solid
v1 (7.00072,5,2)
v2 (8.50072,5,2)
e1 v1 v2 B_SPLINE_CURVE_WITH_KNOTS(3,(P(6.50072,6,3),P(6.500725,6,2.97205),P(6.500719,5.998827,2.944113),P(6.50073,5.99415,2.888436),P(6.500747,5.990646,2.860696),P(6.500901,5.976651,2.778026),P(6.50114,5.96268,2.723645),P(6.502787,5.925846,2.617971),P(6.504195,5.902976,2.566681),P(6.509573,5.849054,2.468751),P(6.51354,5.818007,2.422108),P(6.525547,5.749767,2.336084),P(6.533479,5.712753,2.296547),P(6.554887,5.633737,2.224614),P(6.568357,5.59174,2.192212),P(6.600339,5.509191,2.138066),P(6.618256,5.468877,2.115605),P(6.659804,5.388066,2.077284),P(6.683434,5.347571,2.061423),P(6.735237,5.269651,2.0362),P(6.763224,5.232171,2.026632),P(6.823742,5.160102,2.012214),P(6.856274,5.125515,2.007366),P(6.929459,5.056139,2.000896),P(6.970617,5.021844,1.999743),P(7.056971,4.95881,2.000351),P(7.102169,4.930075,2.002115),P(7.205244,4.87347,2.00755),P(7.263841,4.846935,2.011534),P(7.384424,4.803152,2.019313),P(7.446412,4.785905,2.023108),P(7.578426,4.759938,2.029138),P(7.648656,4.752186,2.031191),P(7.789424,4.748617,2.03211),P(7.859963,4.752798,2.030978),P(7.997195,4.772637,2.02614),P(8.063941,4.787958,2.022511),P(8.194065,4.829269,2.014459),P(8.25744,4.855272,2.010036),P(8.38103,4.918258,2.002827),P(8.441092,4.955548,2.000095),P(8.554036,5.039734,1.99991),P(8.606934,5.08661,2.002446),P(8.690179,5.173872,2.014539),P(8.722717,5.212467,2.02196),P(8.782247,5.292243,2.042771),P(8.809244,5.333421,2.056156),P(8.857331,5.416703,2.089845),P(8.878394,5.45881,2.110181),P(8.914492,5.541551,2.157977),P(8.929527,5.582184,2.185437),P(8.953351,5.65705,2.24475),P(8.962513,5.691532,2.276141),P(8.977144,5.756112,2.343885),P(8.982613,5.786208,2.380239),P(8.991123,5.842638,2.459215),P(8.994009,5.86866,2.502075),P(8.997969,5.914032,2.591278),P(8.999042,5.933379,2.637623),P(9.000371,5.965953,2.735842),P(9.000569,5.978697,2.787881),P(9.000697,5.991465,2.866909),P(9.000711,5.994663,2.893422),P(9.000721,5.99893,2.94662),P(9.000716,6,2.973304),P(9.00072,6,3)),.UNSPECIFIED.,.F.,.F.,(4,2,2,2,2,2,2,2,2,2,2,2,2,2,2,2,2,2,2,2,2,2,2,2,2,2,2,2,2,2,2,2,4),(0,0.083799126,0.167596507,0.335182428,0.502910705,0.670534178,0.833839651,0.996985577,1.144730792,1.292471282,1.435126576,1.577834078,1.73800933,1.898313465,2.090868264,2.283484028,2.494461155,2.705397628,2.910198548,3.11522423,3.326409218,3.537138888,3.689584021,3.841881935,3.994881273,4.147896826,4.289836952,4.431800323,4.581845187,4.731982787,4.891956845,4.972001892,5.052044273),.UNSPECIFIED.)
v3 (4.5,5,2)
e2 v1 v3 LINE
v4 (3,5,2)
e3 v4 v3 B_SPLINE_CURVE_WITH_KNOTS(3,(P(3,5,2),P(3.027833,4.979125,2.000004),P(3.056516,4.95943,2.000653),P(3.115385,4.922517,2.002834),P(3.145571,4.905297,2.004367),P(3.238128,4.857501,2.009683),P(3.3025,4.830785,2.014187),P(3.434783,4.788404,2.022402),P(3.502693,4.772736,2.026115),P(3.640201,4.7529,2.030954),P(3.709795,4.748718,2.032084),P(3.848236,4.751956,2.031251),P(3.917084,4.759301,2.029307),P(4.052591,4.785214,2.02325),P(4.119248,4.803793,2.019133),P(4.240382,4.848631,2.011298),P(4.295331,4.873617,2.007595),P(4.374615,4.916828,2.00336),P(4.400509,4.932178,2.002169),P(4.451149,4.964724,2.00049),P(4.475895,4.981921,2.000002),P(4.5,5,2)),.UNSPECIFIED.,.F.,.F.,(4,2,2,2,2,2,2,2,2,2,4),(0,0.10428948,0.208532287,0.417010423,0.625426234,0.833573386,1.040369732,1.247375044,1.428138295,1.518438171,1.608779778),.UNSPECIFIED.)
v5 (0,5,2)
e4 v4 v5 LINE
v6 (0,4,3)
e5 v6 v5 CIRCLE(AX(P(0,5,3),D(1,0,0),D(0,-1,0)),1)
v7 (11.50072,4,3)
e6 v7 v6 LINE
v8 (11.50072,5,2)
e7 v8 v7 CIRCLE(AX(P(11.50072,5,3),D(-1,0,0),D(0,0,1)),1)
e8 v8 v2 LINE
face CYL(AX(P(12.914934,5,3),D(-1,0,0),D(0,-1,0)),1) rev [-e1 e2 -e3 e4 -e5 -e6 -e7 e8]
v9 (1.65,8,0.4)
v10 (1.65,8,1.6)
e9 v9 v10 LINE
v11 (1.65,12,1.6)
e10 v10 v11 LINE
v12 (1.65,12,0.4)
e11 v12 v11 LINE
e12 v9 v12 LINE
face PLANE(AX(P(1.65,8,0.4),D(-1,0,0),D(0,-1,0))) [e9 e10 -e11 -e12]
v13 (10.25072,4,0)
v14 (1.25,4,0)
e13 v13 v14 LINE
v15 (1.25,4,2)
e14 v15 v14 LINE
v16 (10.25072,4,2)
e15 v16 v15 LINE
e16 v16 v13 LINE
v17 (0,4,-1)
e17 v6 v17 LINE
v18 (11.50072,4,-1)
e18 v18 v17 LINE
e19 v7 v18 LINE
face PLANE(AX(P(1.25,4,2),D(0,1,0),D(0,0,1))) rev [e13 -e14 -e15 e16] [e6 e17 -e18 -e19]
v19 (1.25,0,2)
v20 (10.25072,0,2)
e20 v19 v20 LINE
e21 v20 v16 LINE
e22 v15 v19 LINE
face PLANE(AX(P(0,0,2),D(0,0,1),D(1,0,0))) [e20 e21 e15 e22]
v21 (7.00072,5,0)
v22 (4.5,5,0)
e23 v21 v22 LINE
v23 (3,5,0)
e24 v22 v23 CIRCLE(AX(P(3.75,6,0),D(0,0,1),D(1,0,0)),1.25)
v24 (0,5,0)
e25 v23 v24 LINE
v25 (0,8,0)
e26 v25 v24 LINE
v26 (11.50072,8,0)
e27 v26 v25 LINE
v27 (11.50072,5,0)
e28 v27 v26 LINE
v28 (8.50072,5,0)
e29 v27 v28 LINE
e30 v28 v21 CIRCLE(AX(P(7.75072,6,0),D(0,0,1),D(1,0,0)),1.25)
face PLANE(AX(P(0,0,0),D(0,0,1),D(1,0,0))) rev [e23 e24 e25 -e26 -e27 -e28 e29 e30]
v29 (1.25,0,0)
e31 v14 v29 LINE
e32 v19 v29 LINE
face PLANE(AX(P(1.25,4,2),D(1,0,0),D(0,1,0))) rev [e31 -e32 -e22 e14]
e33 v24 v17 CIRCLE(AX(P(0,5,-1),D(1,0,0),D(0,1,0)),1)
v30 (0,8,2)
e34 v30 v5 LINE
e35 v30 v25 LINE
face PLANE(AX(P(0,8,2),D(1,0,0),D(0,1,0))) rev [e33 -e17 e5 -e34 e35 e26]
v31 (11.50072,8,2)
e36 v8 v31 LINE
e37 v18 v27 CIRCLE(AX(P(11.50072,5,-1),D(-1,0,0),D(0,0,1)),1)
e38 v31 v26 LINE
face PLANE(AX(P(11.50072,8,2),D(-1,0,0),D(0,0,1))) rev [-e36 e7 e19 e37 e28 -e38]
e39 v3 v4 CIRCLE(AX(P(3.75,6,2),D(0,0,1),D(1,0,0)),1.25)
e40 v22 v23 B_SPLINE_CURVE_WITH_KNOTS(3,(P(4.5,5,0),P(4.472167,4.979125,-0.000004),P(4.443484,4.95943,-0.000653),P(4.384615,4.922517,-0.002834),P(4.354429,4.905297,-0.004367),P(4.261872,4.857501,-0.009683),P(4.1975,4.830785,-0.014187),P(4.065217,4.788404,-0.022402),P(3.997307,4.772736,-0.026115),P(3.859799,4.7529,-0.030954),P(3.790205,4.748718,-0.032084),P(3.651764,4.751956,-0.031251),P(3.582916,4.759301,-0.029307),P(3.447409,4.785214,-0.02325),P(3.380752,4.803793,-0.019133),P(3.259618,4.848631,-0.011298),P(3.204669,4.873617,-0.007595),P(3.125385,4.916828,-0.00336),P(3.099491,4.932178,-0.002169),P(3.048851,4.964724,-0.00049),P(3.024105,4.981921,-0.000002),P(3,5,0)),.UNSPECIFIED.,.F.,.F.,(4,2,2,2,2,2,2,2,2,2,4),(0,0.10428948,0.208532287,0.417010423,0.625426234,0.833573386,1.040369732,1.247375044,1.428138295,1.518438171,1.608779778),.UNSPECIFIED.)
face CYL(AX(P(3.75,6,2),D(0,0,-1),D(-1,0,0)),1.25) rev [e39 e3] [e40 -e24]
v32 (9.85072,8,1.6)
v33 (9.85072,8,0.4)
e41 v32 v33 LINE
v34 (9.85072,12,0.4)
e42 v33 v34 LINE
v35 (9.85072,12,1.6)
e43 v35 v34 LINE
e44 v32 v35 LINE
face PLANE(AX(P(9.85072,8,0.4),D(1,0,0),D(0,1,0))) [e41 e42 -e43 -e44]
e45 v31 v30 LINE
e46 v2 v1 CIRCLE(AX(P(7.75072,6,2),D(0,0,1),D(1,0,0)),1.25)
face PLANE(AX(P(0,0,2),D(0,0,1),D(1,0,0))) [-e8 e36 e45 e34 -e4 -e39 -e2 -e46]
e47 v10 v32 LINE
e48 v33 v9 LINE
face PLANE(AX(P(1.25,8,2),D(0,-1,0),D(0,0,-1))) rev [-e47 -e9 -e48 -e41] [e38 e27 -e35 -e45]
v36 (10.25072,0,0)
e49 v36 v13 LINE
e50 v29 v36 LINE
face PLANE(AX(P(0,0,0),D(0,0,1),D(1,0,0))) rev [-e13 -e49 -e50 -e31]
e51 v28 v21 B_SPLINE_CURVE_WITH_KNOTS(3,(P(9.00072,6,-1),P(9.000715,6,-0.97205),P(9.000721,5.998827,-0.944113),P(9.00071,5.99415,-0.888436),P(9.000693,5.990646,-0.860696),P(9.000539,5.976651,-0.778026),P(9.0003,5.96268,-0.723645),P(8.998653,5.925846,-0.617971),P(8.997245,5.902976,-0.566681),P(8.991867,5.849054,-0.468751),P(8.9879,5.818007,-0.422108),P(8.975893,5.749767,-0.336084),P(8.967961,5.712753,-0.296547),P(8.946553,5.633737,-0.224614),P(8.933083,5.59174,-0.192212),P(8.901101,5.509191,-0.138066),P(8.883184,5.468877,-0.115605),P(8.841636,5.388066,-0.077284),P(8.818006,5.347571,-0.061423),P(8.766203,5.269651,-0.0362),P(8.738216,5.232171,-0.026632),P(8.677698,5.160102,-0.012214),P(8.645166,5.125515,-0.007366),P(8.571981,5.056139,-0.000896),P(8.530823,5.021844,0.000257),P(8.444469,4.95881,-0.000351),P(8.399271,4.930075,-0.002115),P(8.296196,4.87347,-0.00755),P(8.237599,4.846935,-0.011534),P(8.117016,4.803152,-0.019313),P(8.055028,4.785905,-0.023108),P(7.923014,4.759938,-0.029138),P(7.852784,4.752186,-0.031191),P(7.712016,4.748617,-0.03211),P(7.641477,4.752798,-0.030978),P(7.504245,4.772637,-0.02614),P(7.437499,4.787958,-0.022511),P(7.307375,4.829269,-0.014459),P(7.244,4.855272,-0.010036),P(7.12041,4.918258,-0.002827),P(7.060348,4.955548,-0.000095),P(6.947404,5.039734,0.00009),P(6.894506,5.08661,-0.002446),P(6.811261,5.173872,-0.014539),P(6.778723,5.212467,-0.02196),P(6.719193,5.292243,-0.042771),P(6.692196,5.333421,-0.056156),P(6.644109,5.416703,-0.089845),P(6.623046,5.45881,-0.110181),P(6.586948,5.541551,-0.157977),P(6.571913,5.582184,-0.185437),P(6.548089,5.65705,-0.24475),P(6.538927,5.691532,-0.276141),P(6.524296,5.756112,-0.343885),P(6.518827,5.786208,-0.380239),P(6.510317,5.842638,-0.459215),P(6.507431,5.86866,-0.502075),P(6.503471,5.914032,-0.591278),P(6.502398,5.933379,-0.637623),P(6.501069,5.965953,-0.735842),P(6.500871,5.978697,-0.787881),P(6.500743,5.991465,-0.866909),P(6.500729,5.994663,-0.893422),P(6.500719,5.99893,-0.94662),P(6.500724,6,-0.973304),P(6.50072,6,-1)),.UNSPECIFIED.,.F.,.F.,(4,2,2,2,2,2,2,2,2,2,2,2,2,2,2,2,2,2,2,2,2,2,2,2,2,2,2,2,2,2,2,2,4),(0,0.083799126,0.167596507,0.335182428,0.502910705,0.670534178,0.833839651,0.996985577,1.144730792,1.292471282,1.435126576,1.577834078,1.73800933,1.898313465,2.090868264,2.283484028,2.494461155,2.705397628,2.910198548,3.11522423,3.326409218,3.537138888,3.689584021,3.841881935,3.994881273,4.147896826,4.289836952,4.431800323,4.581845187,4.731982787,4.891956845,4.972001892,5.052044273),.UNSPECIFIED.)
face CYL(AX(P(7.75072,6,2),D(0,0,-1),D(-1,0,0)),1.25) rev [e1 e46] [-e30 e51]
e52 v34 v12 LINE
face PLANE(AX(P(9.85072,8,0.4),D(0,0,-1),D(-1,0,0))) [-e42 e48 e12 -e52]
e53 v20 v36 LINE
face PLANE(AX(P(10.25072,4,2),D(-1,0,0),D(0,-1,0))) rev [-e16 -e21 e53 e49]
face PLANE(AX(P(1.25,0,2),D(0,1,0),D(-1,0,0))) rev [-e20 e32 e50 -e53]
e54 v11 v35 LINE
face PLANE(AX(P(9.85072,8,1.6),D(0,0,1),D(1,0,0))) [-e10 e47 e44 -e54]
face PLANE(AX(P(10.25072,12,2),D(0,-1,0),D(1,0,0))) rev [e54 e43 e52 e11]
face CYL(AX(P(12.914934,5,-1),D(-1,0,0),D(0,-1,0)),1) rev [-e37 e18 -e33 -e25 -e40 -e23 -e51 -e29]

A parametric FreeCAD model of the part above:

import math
import FreeCAD as App
import Part
import Sketcher
from FreeCAD import Vector
Q = App.Units.Quantity

doc = App.newDocument("Part")
params = doc.addObject("Spreadsheet::Sheet", "Params")
for row, (alias, value) in enumerate([
    ("sketch1_diameter", "2.5 mm"),
    ("sketch1_height", "4 mm"),
    ("sketch1_width", "1.25 mm"),
    ("pad1_length", "2 mm"),
    ("sketch2_radius", "1 mm"),
    ("pad2_length", "11.50072 mm"),
    ("sketch3_diameter", "2.5 mm"),
    ("sketch4_height", "2 mm"),
    ("sketch4_height2", "1.2 mm"),
    ("pocket2_length", "4 mm"),
], start=1):
    params.set(f"A{row}", alias)
    params.set(f"B{row}", "=" + value)
    params.setAlias(f"B{row}", alias)

body = doc.addObject("PartDesign::Body", "Body")

sketch1 = doc.addObject("Sketcher::SketchObject", "Sketch")
body.addObject(sketch1)
sketch1.AttachmentSupport = (doc.XY_Plane, [""])
sketch1.MapMode = "FlatFace"
sketch1.addGeometry(Part.LineSegment(Vector(0, 4, 0), Vector(1.2, 4, 0)), False)
sketch1.addGeometry(Part.LineSegment(Vector(1.2, 4, 0), Vector(1.2, 0, 0)), False)
sketch1.addGeometry(Part.LineSegment(Vector(1.2, 0, 0), Vector(10.3, 0, 0)), False)
sketch1.addGeometry(Part.LineSegment(Vector(10.3, 0, 0), Vector(10.3, 4, 0)), False)
sketch1.addGeometry(Part.LineSegment(Vector(10.3, 4, 0), Vector(11.5, 4, 0)), False)
sketch1.addGeometry(Part.LineSegment(Vector(11.5, 4, 0), Vector(11.5, 8, 0)), False)
sketch1.addGeometry(Part.LineSegment(Vector(11.5, 8, 0), Vector(10.3, 8, 0)), False)
sketch1.addGeometry(Part.LineSegment(Vector(10.3, 8, 0), Vector(10.3, 12, 0)), False)
sketch1.addGeometry(Part.LineSegment(Vector(10.3, 12, 0), Vector(1.2, 12, 0)), False)
sketch1.addGeometry(Part.LineSegment(Vector(1.2, 12, 0), Vector(1.2, 8, 0)), False)
sketch1.addGeometry(Part.LineSegment(Vector(1.2, 8, 0), Vector(0, 8, 0)), False)
sketch1.addGeometry(Part.LineSegment(Vector(0, 8, 0), Vector(0, 4, 0)), False)
sketch1.addGeometry(Part.Circle(Vector(7.8, 6, 0), Vector(0, 0, 1), 1.2), False)
sketch1.addGeometry(Part.Circle(Vector(3.8, 6, 0), Vector(0, 0, 1), 1.2), False)
sketch1.addConstraint(Sketcher.Constraint("Coincident", 0, 2, 1, 1))
sketch1.addConstraint(Sketcher.Constraint("Coincident", 1, 2, 2, 1))
sketch1.addConstraint(Sketcher.Constraint("Coincident", 2, 2, 3, 1))
sketch1.addConstraint(Sketcher.Constraint("Coincident", 3, 2, 4, 1))
sketch1.addConstraint(Sketcher.Constraint("Coincident", 4, 2, 5, 1))
sketch1.addConstraint(Sketcher.Constraint("Coincident", 5, 2, 6, 1))
sketch1.addConstraint(Sketcher.Constraint("Coincident", 6, 2, 7, 1))
sketch1.addConstraint(Sketcher.Constraint("Coincident", 7, 2, 8, 1))
sketch1.addConstraint(Sketcher.Constraint("Coincident", 8, 2, 9, 1))
sketch1.addConstraint(Sketcher.Constraint("Coincident", 9, 2, 10, 1))
sketch1.addConstraint(Sketcher.Constraint("Coincident", 10, 2, 11, 1))
sketch1.addConstraint(Sketcher.Constraint("Coincident", 11, 2, 0, 1))
sketch1.addConstraint(Sketcher.Constraint("Horizontal", 0))
sketch1.addConstraint(Sketcher.Constraint("Vertical", 1))
sketch1.addConstraint(Sketcher.Constraint("Horizontal", 2))
sketch1.addConstraint(Sketcher.Constraint("Vertical", 3))
sketch1.addConstraint(Sketcher.Constraint("Horizontal", 4))
sketch1.addConstraint(Sketcher.Constraint("Vertical", 5))
sketch1.addConstraint(Sketcher.Constraint("Horizontal", 6))
sketch1.addConstraint(Sketcher.Constraint("Vertical", 7))
sketch1.addConstraint(Sketcher.Constraint("Horizontal", 8))
sketch1.addConstraint(Sketcher.Constraint("Vertical", 9))
sketch1.addConstraint(Sketcher.Constraint("Horizontal", 10))
sketch1.addConstraint(Sketcher.Constraint("Vertical", 11))
sketch1.addConstraint(Sketcher.Constraint("Equal", 12, 13))
sketch1.addConstraint(Sketcher.Constraint("PointOnObject", 1, 2, -1))
sketch1.addConstraint(Sketcher.Constraint("PointOnObject", 10, 2, -2))
sketch1.addConstraint(Sketcher.Constraint("Horizontal", 12, 3, 13, 3))
sketch1.addConstraint(Sketcher.Constraint("Horizontal", 0, 2, 3, 2))
sketch1.addConstraint(Sketcher.Constraint("Horizontal", 6, 2, 9, 2))
sketch1.addConstraint(Sketcher.Constraint("Vertical", 3, 2, 6, 2))
sketch1.addConstraint(Sketcher.Constraint("Vertical", 1, 2, 8, 2))
sketch1.addConstraint(Sketcher.Constraint("Equal", 0, 4))
sketch1.addConstraint(Sketcher.Constraint("Equal", 3, 5))
sketch1.addConstraint(Sketcher.Constraint("Equal", 5, 7))
sketch1.addConstraint(Sketcher.Constraint("Diameter", 12, Q("2.5 mm")))
sketch1.addConstraint(Sketcher.Constraint("DistanceY", 1, 2, 1, 1, Q("4 mm")))
sketch1.addConstraint(Sketcher.Constraint("DistanceY", -1, 1, 12, 3, Q("6 mm")))
sketch1.addConstraint(Sketcher.Constraint("DistanceX", 0, 1, 0, 2, Q("1.25 mm")))
sketch1.addConstraint(Sketcher.Constraint("DistanceX", 0, 2, 13, 3, Q("2.5 mm")))
sketch1.addConstraint(Sketcher.Constraint("DistanceX", 12, 3, 2, 2, Q("2.5 mm")))
sketch1.addConstraint(Sketcher.Constraint("DistanceX", 2, 1, 2, 2, Q("9.00072 mm")))
sketch1.setExpression("Constraints[35]", "Params.sketch1_diameter")
sketch1.setExpression("Constraints[36]", "Params.sketch1_height")
sketch1.setExpression("Constraints[38]", "Params.sketch1_width")
pad1 = doc.addObject("PartDesign::Pad", "Pad")
body.addObject(pad1)
pad1.Profile = sketch1
pad1.setExpression("Length", "Params.pad1_length")

sketch2 = doc.addObject("Sketcher::SketchObject", "Sketch001")
body.addObject(sketch2)
sketch2.AttachmentSupport = (doc.YZ_Plane, [""])
sketch2.MapMode = "FlatFace"
sketch2.addGeometry(Part.LineSegment(Vector(5, 2, 0), Vector(4, 2, 0)), False)
sketch2.addGeometry(Part.LineSegment(Vector(4, 2, 0), Vector(4, 3, 0)), False)
sketch2.addGeometry(Part.ArcOfCircle(Part.Circle(Vector(5, 3, 0), Vector(0, 0, 1), 1), math.radians(-180), math.radians(-90)), False)
sketch2.addGeometry(Part.LineSegment(Vector(4, -1, 0), Vector(4, 0, 0)), False)
sketch2.addGeometry(Part.LineSegment(Vector(4, 0, 0), Vector(5, 0, 0)), False)
sketch2.addGeometry(Part.ArcOfCircle(Part.Circle(Vector(5, -1, 0), Vector(0, 0, 1), 1), math.radians(90), math.radians(180)), False)
sketch2.addConstraint(Sketcher.Constraint("Coincident", 0, 2, 1, 1))
sketch2.addConstraint(Sketcher.Constraint("Tangent", 1, 2, 2, 1))
sketch2.addConstraint(Sketcher.Constraint("Tangent", 2, 2, 0, 1))
sketch2.addConstraint(Sketcher.Constraint("Coincident", 3, 2, 4, 1))
sketch2.addConstraint(Sketcher.Constraint("Tangent", 4, 2, 5, 1))
sketch2.addConstraint(Sketcher.Constraint("Tangent", 5, 2, 3, 1))
sketch2.addConstraint(Sketcher.Constraint("Horizontal", 0))
sketch2.addConstraint(Sketcher.Constraint("Vertical", 1))
sketch2.addConstraint(Sketcher.Constraint("Vertical", 3))
sketch2.addConstraint(Sketcher.Constraint("Horizontal", 4))
sketch2.addConstraint(Sketcher.Constraint("Equal", 2, 5))
sketch2.addConstraint(Sketcher.Constraint("PointOnObject", 3, 2, -1))
sketch2.addConstraint(Sketcher.Constraint("Vertical", 2, 3, 5, 3))
sketch2.addConstraint(Sketcher.Constraint("Radius", 2, Q("1 mm")))
sketch2.addConstraint(Sketcher.Constraint("DistanceX", -1, 1, 2, 3, Q("5 mm")))
sketch2.addConstraint(Sketcher.Constraint("DistanceY", -1, 1, 2, 3, Q("3 mm")))
sketch2.setExpression("Constraints[13]", "Params.sketch2_radius")
pad2 = doc.addObject("PartDesign::Pad", "Pad001")
body.addObject(pad2)
pad2.Profile = sketch2
pad2.setExpression("Length", "Params.pad2_length")

sketch3 = doc.addObject("Sketcher::SketchObject", "Sketch002")
body.addObject(sketch3)
sketch3.AttachmentSupport = (doc.XY_Plane, [""])
sketch3.MapMode = "FlatFace"
sketch3.AttachmentOffset = App.Placement(Vector(0, 0, 2), App.Rotation())
sketch3.addGeometry(Part.Circle(Vector(3.8, 6, 0), Vector(0, 0, 1), 1.2), False)
sketch3.addGeometry(Part.Circle(Vector(7.8, 6, 0), Vector(0, 0, 1), 1.2), False)
sketch3.addConstraint(Sketcher.Constraint("Equal", 0, 1))
sketch3.addConstraint(Sketcher.Constraint("Horizontal", 0, 3, 1, 3))
sketch3.addConstraint(Sketcher.Constraint("Diameter", 0, Q("2.5 mm")))
sketch3.addConstraint(Sketcher.Constraint("DistanceY", -1, 1, 0, 3, Q("6 mm")))
sketch3.addConstraint(Sketcher.Constraint("DistanceX", -1, 1, 0, 3, Q("3.75 mm")))
sketch3.addConstraint(Sketcher.Constraint("DistanceX", -1, 1, 1, 3, Q("7.75072 mm")))
sketch3.setExpression("Constraints[2]", "Params.sketch3_diameter")
pocket1 = doc.addObject("PartDesign::Pocket", "Pocket")
body.addObject(pocket1)
pocket1.Profile = sketch3
pocket1.Type = "ThroughAll"
pocket1.Midplane = True

sketch4 = doc.addObject("Sketcher::SketchObject", "Sketch003")
body.addObject(sketch4)
sketch4.AttachmentSupport = (doc.XZ_Plane, [""])
sketch4.MapMode = "FlatFace"
sketch4.AttachmentOffset = App.Placement(Vector(0, 0, -12), App.Rotation())
sketch4.addGeometry(Part.LineSegment(Vector(1.2, 0, 0), Vector(1.2, 2, 0)), False)
sketch4.addGeometry(Part.LineSegment(Vector(1.2, 2, 0), Vector(10.3, 2, 0)), False)
sketch4.addGeometry(Part.LineSegment(Vector(10.3, 2, 0), Vector(10.3, 0, 0)), False)
sketch4.addGeometry(Part.LineSegment(Vector(10.3, 0, 0), Vector(1.2, 0, 0)), False)
sketch4.addGeometry(Part.LineSegment(Vector(9.9, 1.6, 0), Vector(1.6, 1.6, 0)), False)
sketch4.addGeometry(Part.LineSegment(Vector(1.6, 1.6, 0), Vector(1.6, 0.4, 0)), False)
sketch4.addGeometry(Part.LineSegment(Vector(1.6, 0.4, 0), Vector(9.9, 0.4, 0)), False)
sketch4.addGeometry(Part.LineSegment(Vector(9.9, 0.4, 0), Vector(9.9, 1.6, 0)), False)
sketch4.addConstraint(Sketcher.Constraint("Coincident", 0, 2, 1, 1))
sketch4.addConstraint(Sketcher.Constraint("Coincident", 1, 2, 2, 1))
sketch4.addConstraint(Sketcher.Constraint("Coincident", 2, 2, 3, 1))
sketch4.addConstraint(Sketcher.Constraint("Coincident", 3, 2, 0, 1))
sketch4.addConstraint(Sketcher.Constraint("Coincident", 4, 2, 5, 1))
sketch4.addConstraint(Sketcher.Constraint("Coincident", 5, 2, 6, 1))
sketch4.addConstraint(Sketcher.Constraint("Coincident", 6, 2, 7, 1))
sketch4.addConstraint(Sketcher.Constraint("Coincident", 7, 2, 4, 1))
sketch4.addConstraint(Sketcher.Constraint("Vertical", 0))
sketch4.addConstraint(Sketcher.Constraint("Horizontal", 1))
sketch4.addConstraint(Sketcher.Constraint("Vertical", 2))
sketch4.addConstraint(Sketcher.Constraint("Horizontal", 3))
sketch4.addConstraint(Sketcher.Constraint("Horizontal", 4))
sketch4.addConstraint(Sketcher.Constraint("Vertical", 5))
sketch4.addConstraint(Sketcher.Constraint("Horizontal", 6))
sketch4.addConstraint(Sketcher.Constraint("Vertical", 7))
sketch4.addConstraint(Sketcher.Constraint("PointOnObject", 2, 2, -1))
sketch4.addConstraint(Sketcher.Constraint("DistanceY", 0, 1, 0, 2, Q("2 mm")))
sketch4.addConstraint(Sketcher.Constraint("DistanceY", 5, 2, 5, 1, Q("1.2 mm")))
sketch4.addConstraint(Sketcher.Constraint("DistanceY", -1, 1, 4, 2, Q("1.6 mm")))
sketch4.addConstraint(Sketcher.Constraint("DistanceX", 0, 2, 4, 2, Q("0.4 mm")))
sketch4.addConstraint(Sketcher.Constraint("DistanceX", 6, 2, 2, 2, Q("0.4 mm")))
sketch4.addConstraint(Sketcher.Constraint("DistanceX", -1, 1, 0, 2, Q("1.25 mm")))
sketch4.addConstraint(Sketcher.Constraint("DistanceX", 1, 1, 1, 2, Q("9.00072 mm")))
sketch4.setExpression("Constraints[17]", "Params.sketch4_height")
sketch4.setExpression("Constraints[18]", "Params.sketch4_height2")
pocket2 = doc.addObject("PartDesign::Pocket", "Pocket001")
body.addObject(pocket2)
pocket2.Profile = sketch4
pocket2.setExpression("Length", "Params.pocket2_length")
pocket2.Reversed = True

doc.recompute()
